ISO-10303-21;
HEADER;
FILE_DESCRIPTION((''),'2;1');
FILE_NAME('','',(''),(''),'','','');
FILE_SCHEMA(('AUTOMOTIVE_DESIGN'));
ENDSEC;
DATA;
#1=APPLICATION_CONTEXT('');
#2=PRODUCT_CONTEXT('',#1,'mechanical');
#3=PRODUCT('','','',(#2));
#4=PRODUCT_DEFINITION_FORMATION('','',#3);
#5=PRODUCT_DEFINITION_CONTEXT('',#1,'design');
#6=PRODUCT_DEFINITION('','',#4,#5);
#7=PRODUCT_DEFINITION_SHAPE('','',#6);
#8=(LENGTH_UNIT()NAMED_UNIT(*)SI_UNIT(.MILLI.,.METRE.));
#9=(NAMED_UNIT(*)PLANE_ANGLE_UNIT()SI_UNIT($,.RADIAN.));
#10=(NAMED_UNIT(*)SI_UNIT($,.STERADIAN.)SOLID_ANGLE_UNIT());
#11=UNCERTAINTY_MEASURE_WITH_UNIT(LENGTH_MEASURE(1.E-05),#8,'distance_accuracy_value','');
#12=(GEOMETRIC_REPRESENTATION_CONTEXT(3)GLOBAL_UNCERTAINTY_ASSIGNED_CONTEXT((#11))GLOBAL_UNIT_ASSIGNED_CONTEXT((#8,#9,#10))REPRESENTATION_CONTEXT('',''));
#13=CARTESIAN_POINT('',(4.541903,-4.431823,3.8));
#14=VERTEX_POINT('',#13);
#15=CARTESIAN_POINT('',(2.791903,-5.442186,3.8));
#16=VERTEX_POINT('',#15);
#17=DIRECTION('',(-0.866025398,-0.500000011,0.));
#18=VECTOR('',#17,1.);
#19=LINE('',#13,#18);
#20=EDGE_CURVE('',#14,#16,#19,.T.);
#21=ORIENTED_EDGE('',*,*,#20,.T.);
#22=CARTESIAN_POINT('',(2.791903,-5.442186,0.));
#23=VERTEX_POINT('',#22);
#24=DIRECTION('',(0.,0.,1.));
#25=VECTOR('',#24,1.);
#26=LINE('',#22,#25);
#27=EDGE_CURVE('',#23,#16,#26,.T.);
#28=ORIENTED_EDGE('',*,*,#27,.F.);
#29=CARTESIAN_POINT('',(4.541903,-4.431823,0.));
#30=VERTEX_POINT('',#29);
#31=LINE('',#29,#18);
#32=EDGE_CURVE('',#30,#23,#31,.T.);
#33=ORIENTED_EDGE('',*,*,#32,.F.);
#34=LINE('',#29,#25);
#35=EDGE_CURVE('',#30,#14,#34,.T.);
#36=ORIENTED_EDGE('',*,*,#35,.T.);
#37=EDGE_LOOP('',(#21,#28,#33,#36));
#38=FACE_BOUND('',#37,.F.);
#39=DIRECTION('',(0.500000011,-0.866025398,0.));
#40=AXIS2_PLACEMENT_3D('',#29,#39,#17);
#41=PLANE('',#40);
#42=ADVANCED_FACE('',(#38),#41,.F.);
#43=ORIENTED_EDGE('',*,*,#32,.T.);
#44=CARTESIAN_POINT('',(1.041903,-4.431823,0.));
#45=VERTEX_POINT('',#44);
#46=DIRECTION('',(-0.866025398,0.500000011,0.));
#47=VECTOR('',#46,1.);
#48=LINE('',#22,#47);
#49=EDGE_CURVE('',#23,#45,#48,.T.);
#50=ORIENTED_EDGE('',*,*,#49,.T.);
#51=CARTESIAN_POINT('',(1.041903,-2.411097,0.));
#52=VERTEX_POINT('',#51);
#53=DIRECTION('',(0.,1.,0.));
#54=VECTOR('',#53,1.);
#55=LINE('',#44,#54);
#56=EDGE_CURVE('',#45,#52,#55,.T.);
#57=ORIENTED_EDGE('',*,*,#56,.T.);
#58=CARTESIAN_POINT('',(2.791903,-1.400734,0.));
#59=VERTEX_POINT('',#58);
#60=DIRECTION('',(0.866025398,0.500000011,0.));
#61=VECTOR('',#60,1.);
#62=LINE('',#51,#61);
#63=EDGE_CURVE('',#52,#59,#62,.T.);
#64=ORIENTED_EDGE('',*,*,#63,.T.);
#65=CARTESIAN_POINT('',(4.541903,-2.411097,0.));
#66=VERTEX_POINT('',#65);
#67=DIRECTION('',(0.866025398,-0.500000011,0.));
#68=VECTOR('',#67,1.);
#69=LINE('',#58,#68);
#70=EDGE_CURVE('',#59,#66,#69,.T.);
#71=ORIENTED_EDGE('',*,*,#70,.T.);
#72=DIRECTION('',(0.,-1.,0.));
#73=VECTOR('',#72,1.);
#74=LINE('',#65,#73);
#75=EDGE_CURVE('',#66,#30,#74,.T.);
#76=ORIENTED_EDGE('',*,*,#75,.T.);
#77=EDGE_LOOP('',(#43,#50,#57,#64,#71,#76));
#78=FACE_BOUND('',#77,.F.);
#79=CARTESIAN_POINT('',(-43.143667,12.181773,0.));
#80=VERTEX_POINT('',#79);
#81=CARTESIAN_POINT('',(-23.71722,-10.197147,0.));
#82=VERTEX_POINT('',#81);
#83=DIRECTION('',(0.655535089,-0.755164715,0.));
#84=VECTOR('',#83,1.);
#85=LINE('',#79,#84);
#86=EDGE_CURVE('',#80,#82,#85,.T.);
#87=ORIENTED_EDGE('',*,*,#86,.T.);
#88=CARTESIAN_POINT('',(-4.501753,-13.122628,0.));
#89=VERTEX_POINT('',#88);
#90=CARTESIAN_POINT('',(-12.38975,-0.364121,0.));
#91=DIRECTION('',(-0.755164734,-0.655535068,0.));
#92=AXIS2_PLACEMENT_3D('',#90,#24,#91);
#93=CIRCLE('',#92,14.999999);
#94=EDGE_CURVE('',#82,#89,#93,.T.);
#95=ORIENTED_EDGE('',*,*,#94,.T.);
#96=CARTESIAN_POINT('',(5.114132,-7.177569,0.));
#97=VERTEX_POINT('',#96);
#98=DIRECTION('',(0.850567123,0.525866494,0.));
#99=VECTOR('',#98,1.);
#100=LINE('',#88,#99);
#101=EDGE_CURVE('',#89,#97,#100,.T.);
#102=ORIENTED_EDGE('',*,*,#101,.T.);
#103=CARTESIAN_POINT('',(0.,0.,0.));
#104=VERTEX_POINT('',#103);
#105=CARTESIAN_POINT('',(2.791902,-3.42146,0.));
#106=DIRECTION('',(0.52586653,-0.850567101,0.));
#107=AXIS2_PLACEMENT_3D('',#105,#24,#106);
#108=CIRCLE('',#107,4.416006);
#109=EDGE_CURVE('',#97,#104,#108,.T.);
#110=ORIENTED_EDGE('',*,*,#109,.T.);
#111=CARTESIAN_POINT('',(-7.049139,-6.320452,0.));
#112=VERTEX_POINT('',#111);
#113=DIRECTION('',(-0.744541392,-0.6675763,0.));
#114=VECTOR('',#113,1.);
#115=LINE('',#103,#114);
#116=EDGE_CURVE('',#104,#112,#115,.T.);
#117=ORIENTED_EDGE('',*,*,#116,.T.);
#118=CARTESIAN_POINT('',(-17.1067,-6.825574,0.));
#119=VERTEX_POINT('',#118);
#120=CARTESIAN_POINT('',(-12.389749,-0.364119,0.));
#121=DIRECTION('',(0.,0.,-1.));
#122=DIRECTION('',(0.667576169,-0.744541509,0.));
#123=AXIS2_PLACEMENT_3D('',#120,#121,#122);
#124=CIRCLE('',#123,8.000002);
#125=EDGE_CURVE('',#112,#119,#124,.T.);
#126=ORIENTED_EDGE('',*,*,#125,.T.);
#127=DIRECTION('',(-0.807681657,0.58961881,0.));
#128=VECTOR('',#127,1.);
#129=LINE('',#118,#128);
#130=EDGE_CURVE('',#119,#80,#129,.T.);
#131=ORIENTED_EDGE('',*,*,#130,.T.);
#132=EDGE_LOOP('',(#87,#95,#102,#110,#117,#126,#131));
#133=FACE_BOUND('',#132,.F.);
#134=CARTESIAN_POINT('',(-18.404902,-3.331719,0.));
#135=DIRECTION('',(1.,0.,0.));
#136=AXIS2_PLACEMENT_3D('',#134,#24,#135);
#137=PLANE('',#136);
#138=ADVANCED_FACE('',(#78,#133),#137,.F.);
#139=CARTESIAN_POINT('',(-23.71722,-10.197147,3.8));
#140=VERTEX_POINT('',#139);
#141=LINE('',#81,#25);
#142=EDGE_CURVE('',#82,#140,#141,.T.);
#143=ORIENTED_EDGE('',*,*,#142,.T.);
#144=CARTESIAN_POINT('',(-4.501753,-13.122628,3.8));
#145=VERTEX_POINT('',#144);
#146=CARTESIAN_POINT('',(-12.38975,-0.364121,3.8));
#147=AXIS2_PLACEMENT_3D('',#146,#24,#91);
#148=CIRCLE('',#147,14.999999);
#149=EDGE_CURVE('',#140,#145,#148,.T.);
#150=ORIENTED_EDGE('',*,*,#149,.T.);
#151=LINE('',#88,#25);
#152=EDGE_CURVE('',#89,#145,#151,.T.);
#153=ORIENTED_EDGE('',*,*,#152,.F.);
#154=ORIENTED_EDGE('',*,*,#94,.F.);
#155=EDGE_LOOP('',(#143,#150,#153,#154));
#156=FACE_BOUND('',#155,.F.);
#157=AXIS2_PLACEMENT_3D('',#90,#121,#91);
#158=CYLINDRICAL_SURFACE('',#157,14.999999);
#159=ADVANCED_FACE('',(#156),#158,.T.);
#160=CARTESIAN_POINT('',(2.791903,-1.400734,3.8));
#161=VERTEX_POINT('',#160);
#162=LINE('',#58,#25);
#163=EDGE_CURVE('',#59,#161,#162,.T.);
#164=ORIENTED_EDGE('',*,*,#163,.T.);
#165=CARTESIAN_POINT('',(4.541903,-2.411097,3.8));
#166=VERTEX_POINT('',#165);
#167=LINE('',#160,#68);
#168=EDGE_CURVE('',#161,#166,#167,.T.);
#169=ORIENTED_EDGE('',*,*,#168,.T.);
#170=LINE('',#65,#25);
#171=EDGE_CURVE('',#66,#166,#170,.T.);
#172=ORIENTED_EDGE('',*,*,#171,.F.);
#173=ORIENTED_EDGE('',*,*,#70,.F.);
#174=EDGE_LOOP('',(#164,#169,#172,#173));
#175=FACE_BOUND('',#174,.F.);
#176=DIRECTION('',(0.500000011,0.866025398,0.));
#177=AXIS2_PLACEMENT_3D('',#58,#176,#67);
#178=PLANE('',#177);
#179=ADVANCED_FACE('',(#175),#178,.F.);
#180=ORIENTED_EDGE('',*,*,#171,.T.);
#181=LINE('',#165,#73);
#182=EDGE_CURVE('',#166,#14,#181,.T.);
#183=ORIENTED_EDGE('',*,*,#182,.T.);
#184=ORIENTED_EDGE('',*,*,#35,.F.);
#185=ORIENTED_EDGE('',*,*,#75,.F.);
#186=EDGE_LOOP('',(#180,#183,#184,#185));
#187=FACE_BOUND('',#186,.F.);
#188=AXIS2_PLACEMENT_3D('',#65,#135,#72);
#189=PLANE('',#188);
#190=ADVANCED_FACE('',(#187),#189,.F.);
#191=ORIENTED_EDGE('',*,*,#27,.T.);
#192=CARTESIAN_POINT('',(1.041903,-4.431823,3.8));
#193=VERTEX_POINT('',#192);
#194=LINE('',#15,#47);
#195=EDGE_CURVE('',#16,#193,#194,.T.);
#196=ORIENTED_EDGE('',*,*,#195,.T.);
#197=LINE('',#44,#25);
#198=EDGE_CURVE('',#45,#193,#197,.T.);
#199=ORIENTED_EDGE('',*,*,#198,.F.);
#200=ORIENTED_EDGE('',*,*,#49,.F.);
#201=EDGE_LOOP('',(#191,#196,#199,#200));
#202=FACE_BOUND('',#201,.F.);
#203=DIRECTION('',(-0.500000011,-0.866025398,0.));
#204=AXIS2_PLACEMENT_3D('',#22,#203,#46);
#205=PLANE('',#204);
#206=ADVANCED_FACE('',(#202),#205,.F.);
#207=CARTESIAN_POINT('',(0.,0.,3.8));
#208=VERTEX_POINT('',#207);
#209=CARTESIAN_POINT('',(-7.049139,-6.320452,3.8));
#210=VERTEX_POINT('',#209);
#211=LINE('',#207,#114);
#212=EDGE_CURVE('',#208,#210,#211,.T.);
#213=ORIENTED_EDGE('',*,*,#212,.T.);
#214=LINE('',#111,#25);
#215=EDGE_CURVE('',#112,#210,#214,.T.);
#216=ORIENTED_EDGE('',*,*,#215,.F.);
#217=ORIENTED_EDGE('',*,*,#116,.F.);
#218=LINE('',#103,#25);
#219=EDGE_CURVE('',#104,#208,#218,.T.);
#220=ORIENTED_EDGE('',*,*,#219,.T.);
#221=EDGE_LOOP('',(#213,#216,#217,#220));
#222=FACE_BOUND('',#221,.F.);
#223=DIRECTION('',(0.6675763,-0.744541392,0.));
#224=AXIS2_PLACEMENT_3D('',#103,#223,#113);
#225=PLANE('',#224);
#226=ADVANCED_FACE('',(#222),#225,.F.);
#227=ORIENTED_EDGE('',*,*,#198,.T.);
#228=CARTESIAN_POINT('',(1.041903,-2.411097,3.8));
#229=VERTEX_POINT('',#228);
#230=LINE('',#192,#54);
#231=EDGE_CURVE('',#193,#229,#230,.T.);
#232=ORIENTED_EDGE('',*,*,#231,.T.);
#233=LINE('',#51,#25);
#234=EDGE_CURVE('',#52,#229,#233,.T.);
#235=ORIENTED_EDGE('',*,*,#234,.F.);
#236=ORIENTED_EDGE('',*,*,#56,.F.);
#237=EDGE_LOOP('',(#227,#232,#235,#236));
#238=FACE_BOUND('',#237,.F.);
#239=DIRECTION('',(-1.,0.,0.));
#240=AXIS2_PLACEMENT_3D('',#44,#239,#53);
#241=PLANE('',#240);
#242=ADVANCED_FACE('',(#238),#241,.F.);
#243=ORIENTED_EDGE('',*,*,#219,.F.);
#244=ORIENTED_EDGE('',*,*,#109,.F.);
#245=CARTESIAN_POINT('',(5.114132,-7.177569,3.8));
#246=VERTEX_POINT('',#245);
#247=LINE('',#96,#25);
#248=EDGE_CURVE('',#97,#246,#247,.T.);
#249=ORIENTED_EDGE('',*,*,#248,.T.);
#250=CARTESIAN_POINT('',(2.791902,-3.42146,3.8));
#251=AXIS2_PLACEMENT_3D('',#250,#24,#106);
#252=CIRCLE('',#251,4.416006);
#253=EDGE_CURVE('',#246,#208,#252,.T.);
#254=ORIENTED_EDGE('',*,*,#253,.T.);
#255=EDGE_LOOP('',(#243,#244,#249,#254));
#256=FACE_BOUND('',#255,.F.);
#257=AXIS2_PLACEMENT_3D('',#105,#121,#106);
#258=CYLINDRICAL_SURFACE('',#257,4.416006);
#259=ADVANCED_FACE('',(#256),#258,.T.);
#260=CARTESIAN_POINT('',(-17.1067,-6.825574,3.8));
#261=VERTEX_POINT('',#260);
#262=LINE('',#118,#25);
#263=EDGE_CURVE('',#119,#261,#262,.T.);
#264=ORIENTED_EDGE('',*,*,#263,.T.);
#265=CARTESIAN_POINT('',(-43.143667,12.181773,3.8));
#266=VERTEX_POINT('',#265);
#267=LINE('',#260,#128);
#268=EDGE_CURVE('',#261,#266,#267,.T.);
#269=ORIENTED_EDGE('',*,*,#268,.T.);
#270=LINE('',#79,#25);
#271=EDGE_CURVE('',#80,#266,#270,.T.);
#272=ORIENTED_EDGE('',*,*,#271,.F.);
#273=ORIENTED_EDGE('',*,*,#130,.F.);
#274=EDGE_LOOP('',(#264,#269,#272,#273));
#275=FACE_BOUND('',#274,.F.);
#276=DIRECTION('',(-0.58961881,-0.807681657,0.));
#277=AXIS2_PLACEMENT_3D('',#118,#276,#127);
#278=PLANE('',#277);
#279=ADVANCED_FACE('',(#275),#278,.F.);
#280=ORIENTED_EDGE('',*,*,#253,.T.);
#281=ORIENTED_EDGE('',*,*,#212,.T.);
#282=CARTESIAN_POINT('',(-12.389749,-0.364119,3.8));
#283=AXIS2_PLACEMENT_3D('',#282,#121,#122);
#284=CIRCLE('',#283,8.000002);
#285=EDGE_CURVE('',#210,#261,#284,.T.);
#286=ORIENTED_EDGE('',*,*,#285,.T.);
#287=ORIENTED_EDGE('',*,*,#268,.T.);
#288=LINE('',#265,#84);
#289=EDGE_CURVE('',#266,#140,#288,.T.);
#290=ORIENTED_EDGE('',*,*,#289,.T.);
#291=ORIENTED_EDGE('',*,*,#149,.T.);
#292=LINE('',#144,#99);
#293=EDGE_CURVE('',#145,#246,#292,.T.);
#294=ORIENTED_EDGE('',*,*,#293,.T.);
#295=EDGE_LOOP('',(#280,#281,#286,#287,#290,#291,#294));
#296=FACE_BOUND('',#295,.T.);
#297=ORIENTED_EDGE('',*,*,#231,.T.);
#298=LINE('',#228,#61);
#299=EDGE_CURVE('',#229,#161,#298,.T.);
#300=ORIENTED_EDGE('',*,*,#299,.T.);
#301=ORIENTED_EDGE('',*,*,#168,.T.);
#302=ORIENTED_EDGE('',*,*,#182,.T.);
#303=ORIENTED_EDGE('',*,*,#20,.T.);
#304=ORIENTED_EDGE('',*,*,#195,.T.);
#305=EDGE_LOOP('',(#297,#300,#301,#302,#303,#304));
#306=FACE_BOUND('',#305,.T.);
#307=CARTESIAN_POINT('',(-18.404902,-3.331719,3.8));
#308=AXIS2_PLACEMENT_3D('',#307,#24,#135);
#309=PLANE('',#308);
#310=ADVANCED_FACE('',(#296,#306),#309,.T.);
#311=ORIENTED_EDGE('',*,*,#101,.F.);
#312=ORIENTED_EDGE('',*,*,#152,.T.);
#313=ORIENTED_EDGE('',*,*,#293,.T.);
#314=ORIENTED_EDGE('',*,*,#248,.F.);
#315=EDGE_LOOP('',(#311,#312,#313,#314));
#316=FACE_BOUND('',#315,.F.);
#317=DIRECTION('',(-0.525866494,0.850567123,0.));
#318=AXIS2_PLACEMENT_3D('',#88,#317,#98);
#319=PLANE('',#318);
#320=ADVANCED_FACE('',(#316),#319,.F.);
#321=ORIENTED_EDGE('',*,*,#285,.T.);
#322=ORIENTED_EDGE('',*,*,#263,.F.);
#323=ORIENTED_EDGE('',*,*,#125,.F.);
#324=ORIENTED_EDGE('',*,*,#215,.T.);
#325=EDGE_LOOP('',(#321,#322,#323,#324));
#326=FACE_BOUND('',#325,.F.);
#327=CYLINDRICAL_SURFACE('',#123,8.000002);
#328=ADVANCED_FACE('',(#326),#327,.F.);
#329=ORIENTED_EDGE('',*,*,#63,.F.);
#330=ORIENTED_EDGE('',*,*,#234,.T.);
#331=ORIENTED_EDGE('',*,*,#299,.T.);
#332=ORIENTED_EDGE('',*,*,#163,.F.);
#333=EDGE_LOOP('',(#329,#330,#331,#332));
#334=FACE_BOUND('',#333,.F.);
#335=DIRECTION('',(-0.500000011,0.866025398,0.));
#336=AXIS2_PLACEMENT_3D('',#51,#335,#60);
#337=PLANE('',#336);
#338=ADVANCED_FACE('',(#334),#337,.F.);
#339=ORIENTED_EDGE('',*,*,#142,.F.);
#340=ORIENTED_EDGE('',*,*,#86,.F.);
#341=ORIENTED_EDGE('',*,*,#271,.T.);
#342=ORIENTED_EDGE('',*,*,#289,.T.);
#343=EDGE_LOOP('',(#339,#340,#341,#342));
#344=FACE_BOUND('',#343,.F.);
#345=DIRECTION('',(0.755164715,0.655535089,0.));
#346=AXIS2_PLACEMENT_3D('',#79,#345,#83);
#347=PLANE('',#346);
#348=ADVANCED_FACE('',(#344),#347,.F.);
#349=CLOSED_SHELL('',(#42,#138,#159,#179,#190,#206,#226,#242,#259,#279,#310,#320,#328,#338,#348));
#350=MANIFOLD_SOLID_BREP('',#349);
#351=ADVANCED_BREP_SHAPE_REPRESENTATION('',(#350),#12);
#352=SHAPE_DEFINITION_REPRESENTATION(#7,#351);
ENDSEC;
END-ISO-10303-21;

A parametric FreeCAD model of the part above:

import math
import FreeCAD as App
import Part
import Sketcher

V = App.Vector
Q = App.Units.Quantity

doc = App.newDocument("Part")
body = doc.addObject("PartDesign::Body", "Body")

# Sketch on XY plane
sketch1 = body.newObject("Sketcher::SketchObject", "Sketch")
sketch1.AttachmentSupport = (doc.getObject("XY_Plane"), [""])
sketch1.MapMode = "FlatFace"
sketch1.addGeometry(Part.LineSegment(V(0, 0, 0), V(-7.049139, -6.320452, 0)), False)
sketch1.addGeometry(Part.ArcOfCircle(Part.Circle(V(-12.389749, -0.364119, 0), V(0, 0, 1), 8.000002), math.radians(-126.129954), math.radians(-48.119733)), False)
sketch1.addGeometry(Part.LineSegment(V(-17.1067, -6.825574, 0), V(-43.143667, 12.181773, 0)), False)
sketch1.addGeometry(Part.LineSegment(V(-43.143667, 12.181773, 0), V(-23.71722, -10.197147, 0)), False)
sketch1.addGeometry(Part.ArcOfCircle(Part.Circle(V(-12.38975, -0.364121, 0), V(0, 0, 1), 14.999999), math.radians(-139.039766), math.radians(-58.273409)), False)
sketch1.addGeometry(Part.LineSegment(V(-4.501753, -13.122628, 0), V(5.114132, -7.177569, 0)), False)
sketch1.addGeometry(Part.ArcOfCircle(Part.Circle(V(2.791902, -3.42146, 0), V(0, 0, 1), 4.416006), math.radians(-58.273404), math.radians(129.214356)), False)
sketch1.addGeometry(Part.LineSegment(V(4.541903, -4.431823, 0), V(2.791903, -5.442186, 0)), False)
sketch1.addGeometry(Part.LineSegment(V(2.791903, -5.442186, 0), V(1.041903, -4.431823, 0)), False)
sketch1.addGeometry(Part.LineSegment(V(1.041903, -4.431823, 0), V(1.041903, -2.411097, 0)), False)
sketch1.addGeometry(Part.LineSegment(V(1.041903, -2.411097, 0), V(2.791903, -1.400734, 0)), False)
sketch1.addGeometry(Part.LineSegment(V(2.791903, -1.400734, 0), V(4.541903, -2.411097, 0)), False)
sketch1.addGeometry(Part.LineSegment(V(4.541903, -2.411097, 0), V(4.541903, -4.431823, 0)), False)
sketch1.addConstraint(Sketcher.Constraint("Coincident", 0, 2, 1, 2))
sketch1.addConstraint(Sketcher.Constraint("Coincident", 1, 1, 2, 1))
sketch1.addConstraint(Sketcher.Constraint("Coincident", 2, 2, 3, 1))
sketch1.addConstraint(Sketcher.Constraint("Coincident", 3, 2, 4, 1))
sketch1.addConstraint(Sketcher.Constraint("Coincident", 4, 2, 5, 1))
sketch1.addConstraint(Sketcher.Constraint("Coincident", 5, 2, 6, 1))
sketch1.addConstraint(Sketcher.Constraint("Coincident", 6, 2, 0, 1))
sketch1.addConstraint(Sketcher.Constraint("Coincident", 7, 2, 8, 1))
sketch1.addConstraint(Sketcher.Constraint("Coincident", 8, 2, 9, 1))
sketch1.addConstraint(Sketcher.Constraint("Coincident", 9, 2, 10, 1))
sketch1.addConstraint(Sketcher.Constraint("Coincident", 10, 2, 11, 1))
sketch1.addConstraint(Sketcher.Constraint("Coincident", 11, 2, 12, 1))
sketch1.addConstraint(Sketcher.Constraint("Coincident", 12, 2, 7, 1))
sketch1.addConstraint(Sketcher.Constraint("Vertical", 9))
sketch1.addConstraint(Sketcher.Constraint("Vertical", 12))
sketch1.addConstraint(Sketcher.Constraint("Coincident", 6, 2, -1, 1))
sketch1.addConstraint(Sketcher.Constraint("Coincident", 4, 3, 1, 3))
sketch1.addConstraint(Sketcher.Constraint("Radius", 1, Q("8.000002 mm")))
sketch1.addConstraint(Sketcher.Constraint("Radius", 4, Q("14.999999 mm")))
sketch1.addConstraint(Sketcher.Constraint("DistanceX", 9, 2, 11, 2, Q("3.5 mm")))
sketch1.addConstraint(Sketcher.Constraint("DistanceX", 8, 2, 6, 3, Q("1.749999 mm")))
sketch1.addConstraint(Sketcher.Constraint("DistanceX", 8, 2, 7, 2, Q("1.75 mm")))
sketch1.addConstraint(Sketcher.Constraint("DistanceX", 9, 2, 10, 2, Q("1.75 mm")))
sketch1.addConstraint(Sketcher.Constraint("Radius", 6, Q("4.416006 mm")))
sketch1.addConstraint(Sketcher.Constraint("DistanceX", 1, 1, -1, 1, Q("17.1067 mm")))
sketch1.addConstraint(Sketcher.Constraint("Distance", 0, Q("9.46776 mm")))
sketch1.addConstraint(Sketcher.Constraint("Distance", 2, Q("32.23667 mm")))
sketch1.addConstraint(Sketcher.Constraint("Distance", 3, Q("29.634488 mm")))
sketch1.addConstraint(Sketcher.Constraint("DistanceY", 9, 1, 9, 2, Q("2.020726 mm")))
sketch1.addConstraint(Sketcher.Constraint("DistanceY", 12, 2, 12, 1, Q("2.020726 mm")))
sketch1.addConstraint(Sketcher.Constraint("DistanceX", 1, 3, -1, 1, Q("12.389749 mm")))
sketch1.addConstraint(Sketcher.Constraint("DistanceY", 1, 3, -1, 1, Q("0.364119 mm")))
sketch1.addConstraint(Sketcher.Constraint("DistanceY", 6, 3, -1, 1, Q("3.42146 mm")))
sketch1.addConstraint(Sketcher.Constraint("DistanceX", 3, 2, -1, 1, Q("23.71722 mm")))
sketch1.addConstraint(Sketcher.Constraint("DistanceY", 4, 2, -1, 1, Q("13.122628 mm")))
sketch1.addConstraint(Sketcher.Constraint("DistanceX", -1, 1, 5, 2, Q("5.114132 mm")))
sketch1.addConstraint(Sketcher.Constraint("DistanceY", 0, 2, 8, 2, Q("1.888629 mm")))
sketch1.addConstraint(Sketcher.Constraint("DistanceY", 7, 2, 9, 2, Q("3.031089 mm")))
sketch1.addConstraint(Sketcher.Constraint("DistanceY", 8, 2, 10, 2, Q("3.031089 mm")))
sketch1.addConstraint(Sketcher.Constraint("DistanceY", 7, 2, 11, 2, Q("3.031089 mm")))
pad1 = body.newObject("PartDesign::Pad", "Pad")
pad1.Profile = sketch1
pad1.Length = 3.8

doc.recompute()
